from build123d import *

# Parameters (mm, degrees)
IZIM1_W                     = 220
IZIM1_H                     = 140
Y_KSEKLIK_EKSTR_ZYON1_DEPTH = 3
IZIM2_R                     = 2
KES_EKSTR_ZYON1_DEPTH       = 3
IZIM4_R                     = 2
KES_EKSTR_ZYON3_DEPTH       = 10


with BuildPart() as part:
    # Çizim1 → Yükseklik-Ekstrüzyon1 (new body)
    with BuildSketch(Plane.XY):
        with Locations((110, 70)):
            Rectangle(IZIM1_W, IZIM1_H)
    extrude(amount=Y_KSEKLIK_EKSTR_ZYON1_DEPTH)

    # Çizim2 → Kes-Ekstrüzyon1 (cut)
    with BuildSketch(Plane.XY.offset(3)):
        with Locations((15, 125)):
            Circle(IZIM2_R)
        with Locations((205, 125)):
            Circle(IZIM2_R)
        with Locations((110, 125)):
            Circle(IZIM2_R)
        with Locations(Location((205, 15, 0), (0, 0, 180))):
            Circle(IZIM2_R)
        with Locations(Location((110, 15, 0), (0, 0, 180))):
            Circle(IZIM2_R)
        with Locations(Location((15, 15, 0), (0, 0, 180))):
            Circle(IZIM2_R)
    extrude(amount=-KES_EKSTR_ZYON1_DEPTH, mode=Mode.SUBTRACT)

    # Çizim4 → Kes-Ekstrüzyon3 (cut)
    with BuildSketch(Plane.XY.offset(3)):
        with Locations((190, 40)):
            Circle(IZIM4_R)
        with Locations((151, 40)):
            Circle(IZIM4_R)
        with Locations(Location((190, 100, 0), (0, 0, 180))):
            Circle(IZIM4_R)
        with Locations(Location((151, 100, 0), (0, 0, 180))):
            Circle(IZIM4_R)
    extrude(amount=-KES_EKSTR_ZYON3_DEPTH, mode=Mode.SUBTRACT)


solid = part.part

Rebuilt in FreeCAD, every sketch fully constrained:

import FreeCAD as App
import Part
import Sketcher

V = App.Vector
Q = App.Units.Quantity


def add_polygon(sketch, points):
    """Adds a closed chain of lines whose ends are joined by coincident constraints."""
    first, n = sketch.GeometryCount, len(points)
    for a, b in zip(points, points[1:] + points[:1]):
        sketch.addGeometry(Part.LineSegment(App.Vector(*a, 0), App.Vector(*b, 0)), False)
    for i in range(n):
        sketch.addConstraint(Sketcher.Constraint("Coincident", first + i, 2, first + (i + 1) % n, 1))

doc = App.newDocument("Part")
body = doc.addObject("PartDesign::Body", "Body")

sketch1 = body.newObject("Sketcher::SketchObject", "Sketch")
sketch1.AttachmentSupport = (doc.getObject("XY_Plane"), [""])
sketch1.MapMode = "FlatFace"
add_polygon(sketch1, [(0, 140), (0, 0), (220, 0), (220, 140)])
sketch1.addConstraint([
    Sketcher.Constraint("Vertical", 0),
    Sketcher.Constraint("Horizontal", 1),
    Sketcher.Constraint("Vertical", 2),
    Sketcher.Constraint("Horizontal", 3),
    Sketcher.Constraint("Coincident", 0, 2, -1, 1),
    Sketcher.Constraint("DistanceX", 1, 1, 1, 2, Q("220 mm")),
    Sketcher.Constraint("DistanceY", 0, 2, 0, 1, Q("140 mm")),
])
pad1 = body.newObject("PartDesign::Pad", "Pad")
pad1.Profile = sketch1
pad1.Length = 3

sketch2 = body.newObject("Sketcher::SketchObject", "Sketch001")
sketch2.AttachmentSupport = (doc.getObject("XY_Plane"), [""])
sketch2.MapMode = "FlatFace"
sketch2.AttachmentOffset = App.Placement(V(0, 0, 3), App.Rotation())
sketch2.addGeometry([
    Part.Circle(V(15, 125, 0), V(0, 0, 1), 2),
    Part.Circle(V(205, 125, 0), V(0, 0, 1), 2),
    Part.Circle(V(110, 125, 0), V(0, 0, 1), 2),
    Part.Circle(V(205, 15, 0), V(0, 0, 1), 2),
    Part.Circle(V(110, 15, 0), V(0, 0, 1), 2),
    Part.Circle(V(15, 15, 0), V(0, 0, 1), 2),
], False)
sketch2.addConstraint([
    Sketcher.Constraint("Equal", 0, 1),
    Sketcher.Constraint("Equal", 1, 2),
    Sketcher.Constraint("Equal", 2, 3),
    Sketcher.Constraint("Equal", 3, 4),
    Sketcher.Constraint("Equal", 4, 5),
    Sketcher.Constraint("Horizontal", 0, 3, 1, 3),
    Sketcher.Constraint("Horizontal", 1, 3, 2, 3),
    Sketcher.Constraint("Horizontal", 3, 3, 4, 3),
    Sketcher.Constraint("Horizontal", 4, 3, 5, 3),
    Sketcher.Constraint("Vertical", 1, 3, 3, 3),
    Sketcher.Constraint("Vertical", 2, 3, 4, 3),
    Sketcher.Constraint("Vertical", 0, 3, 5, 3),
    Sketcher.Constraint("Diameter", 0, Q("4 mm")),
    Sketcher.Constraint("DistanceX", -1, 1, 0, 3, Q("15 mm")),
    Sketcher.Constraint("DistanceY", -1, 1, 0, 3, Q("125 mm")),
    Sketcher.Constraint("DistanceX", -1, 1, 1, 3, Q("205 mm")),
    Sketcher.Constraint("DistanceX", -1, 1, 2, 3, Q("110 mm")),
    Sketcher.Constraint("DistanceY", -1, 1, 3, 3, Q("15 mm")),
])
pocket1 = body.newObject("PartDesign::Pocket", "Pocket")
pocket1.Profile = sketch2
pocket1.Length = 3

sketch3 = body.newObject("Sketcher::SketchObject", "Sketch002")
sketch3.AttachmentSupport = (doc.getObject("XY_Plane"), [""])
sketch3.MapMode = "FlatFace"
sketch3.AttachmentOffset = App.Placement(V(0, 0, 3), App.Rotation())
sketch3.addGeometry([
    Part.Circle(V(190, 40, 0), V(0, 0, 1), 2),
    Part.Circle(V(151, 40, 0), V(0, 0, 1), 2),
    Part.Circle(V(190, 100, 0), V(0, 0, 1), 2),
    Part.Circle(V(151, 100, 0), V(0, 0, 1), 2),
], False)
sketch3.addConstraint([
    Sketcher.Constraint("Equal", 0, 1),
    Sketcher.Constraint("Equal", 1, 2),
    Sketcher.Constraint("Equal", 2, 3),
    Sketcher.Constraint("Horizontal", 0, 3, 1, 3),
    Sketcher.Constraint("Horizontal", 2, 3, 3, 3),
    Sketcher.Constraint("Vertical", 0, 3, 2, 3),
    Sketcher.Constraint("Vertical", 1, 3, 3, 3),
    Sketcher.Constraint("Diameter", 0, Q("4 mm")),
    Sketcher.Constraint("DistanceX", -1, 1, 0, 3, Q("190 mm")),
    Sketcher.Constraint("DistanceY", -1, 1, 0, 3, Q("40 mm")),
    Sketcher.Constraint("DistanceX", -1, 1, 1, 3, Q("151 mm")),
    Sketcher.Constraint("DistanceY", -1, 1, 2, 3, Q("100 mm")),
])
pocket2 = body.newObject("PartDesign::Pocket", "Pocket001")
pocket2.Profile = sketch3
pocket2.Length = 10

doc.recompute()
